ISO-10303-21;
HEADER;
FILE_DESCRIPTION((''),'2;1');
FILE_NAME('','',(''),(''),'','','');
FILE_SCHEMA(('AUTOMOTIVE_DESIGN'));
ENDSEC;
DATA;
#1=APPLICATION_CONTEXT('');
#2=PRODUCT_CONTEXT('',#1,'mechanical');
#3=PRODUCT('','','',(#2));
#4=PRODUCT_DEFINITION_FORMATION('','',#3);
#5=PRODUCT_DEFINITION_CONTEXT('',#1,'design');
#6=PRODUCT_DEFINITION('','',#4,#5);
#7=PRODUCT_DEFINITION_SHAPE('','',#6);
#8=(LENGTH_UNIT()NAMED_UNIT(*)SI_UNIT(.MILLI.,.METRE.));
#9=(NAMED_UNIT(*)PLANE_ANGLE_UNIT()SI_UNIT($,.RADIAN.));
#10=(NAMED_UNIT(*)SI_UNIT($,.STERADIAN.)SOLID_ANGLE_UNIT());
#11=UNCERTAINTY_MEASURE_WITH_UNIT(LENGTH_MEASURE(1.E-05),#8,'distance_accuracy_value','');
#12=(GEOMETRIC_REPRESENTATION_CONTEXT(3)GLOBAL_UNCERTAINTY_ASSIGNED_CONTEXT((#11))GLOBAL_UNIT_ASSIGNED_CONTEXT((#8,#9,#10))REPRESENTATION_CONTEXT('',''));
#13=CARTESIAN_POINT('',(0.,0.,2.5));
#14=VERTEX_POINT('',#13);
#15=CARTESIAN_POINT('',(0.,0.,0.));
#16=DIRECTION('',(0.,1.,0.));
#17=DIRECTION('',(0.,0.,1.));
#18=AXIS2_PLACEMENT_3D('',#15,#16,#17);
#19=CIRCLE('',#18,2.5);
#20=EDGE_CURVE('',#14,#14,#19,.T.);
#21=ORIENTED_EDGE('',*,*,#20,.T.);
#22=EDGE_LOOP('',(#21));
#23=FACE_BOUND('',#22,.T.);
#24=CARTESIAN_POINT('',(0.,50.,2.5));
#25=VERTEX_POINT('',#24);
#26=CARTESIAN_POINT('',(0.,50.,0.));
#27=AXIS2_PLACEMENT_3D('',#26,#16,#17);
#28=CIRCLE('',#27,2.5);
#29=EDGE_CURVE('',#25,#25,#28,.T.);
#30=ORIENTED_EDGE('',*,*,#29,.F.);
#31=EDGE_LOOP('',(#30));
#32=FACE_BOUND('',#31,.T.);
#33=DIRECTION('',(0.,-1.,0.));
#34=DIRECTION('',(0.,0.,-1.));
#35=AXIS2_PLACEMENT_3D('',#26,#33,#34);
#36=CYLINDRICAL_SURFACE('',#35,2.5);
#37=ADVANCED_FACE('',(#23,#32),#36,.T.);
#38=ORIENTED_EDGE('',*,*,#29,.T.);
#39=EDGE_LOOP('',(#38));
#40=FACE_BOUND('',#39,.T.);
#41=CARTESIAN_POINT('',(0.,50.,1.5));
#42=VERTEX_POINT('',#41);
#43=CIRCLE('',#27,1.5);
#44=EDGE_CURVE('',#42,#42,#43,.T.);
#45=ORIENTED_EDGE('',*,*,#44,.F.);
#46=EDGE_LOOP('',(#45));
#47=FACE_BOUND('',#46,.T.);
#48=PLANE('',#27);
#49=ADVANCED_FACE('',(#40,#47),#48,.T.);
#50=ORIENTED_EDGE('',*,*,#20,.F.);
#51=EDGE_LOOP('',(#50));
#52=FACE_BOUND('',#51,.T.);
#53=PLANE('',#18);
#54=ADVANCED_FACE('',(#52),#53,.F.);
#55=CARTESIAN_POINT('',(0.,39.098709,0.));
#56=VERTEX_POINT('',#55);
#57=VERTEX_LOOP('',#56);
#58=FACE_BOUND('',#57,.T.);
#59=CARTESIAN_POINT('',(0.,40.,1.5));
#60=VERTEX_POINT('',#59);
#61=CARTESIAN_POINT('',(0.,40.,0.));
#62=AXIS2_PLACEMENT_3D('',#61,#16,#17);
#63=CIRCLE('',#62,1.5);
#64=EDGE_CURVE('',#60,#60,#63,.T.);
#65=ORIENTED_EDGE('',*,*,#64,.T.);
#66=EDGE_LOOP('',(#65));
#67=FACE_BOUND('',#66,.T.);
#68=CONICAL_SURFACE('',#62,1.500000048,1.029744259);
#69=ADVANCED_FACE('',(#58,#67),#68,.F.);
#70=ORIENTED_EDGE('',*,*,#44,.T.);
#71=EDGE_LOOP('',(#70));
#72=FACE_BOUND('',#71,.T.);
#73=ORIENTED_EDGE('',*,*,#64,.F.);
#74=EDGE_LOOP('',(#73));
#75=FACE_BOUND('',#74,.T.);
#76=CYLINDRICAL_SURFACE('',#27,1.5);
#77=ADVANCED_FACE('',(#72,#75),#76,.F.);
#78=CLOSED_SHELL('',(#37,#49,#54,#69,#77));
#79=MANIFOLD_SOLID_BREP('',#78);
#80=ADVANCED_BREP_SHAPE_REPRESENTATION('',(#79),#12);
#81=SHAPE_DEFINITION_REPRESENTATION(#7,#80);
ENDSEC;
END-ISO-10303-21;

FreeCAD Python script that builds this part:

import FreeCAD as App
import Part
import Sketcher
from FreeCAD import Vector

doc = App.newDocument("Part")
body = doc.addObject("PartDesign::Body", "Body")

sketch1 = body.newObject("Sketcher::SketchObject", "Sketch")
sketch1.AttachmentSupport = (doc.getObject("XZ_Plane"), [""])
sketch1.MapMode = "FlatFace"
sketch1.addGeometry(Part.Circle(Vector(0, 0, 0), Vector(0, 0, 1), 2.5), False)
sketch1.addConstraint([
    Sketcher.Constraint("Coincident", 0, 3, -1, 1),
    Sketcher.Constraint("Diameter", 0, 5.0),
])
pad1 = body.newObject("PartDesign::Pad", "Pad")
pad1.Profile = sketch1
pad1.Length = 50
pad1.Reversed = True

sketch2 = body.newObject("Sketcher::SketchObject", "Sketch001")
sketch2.AttachmentSupport = (doc.getObject("XZ_Plane"), [""])
sketch2.MapMode = "FlatFace"
sketch2.AttachmentOffset = App.Placement(Vector(0, 0, -50), App.Rotation())
sketch2.addGeometry(Part.Circle(Vector(0, 0, 0), Vector(0, 0, 1), 1.5), False)
sketch2.addConstraint([
    Sketcher.Constraint("Coincident", 0, 3, -1, 1),
    Sketcher.Constraint("Diameter", 0, 3.0),
])
doc.recompute()
hole = body.newObject("PartDesign::Hole", "Hole")
hole.Profile = sketch2
hole.ThreadType = "None"
hole.Diameter = 3
hole.DepthType = "Dimension"
hole.Depth = 10
hole.DrillPoint = "Angled"
hole.DrillPointAngle = 118
hole.Reversed = True

doc.recompute()
